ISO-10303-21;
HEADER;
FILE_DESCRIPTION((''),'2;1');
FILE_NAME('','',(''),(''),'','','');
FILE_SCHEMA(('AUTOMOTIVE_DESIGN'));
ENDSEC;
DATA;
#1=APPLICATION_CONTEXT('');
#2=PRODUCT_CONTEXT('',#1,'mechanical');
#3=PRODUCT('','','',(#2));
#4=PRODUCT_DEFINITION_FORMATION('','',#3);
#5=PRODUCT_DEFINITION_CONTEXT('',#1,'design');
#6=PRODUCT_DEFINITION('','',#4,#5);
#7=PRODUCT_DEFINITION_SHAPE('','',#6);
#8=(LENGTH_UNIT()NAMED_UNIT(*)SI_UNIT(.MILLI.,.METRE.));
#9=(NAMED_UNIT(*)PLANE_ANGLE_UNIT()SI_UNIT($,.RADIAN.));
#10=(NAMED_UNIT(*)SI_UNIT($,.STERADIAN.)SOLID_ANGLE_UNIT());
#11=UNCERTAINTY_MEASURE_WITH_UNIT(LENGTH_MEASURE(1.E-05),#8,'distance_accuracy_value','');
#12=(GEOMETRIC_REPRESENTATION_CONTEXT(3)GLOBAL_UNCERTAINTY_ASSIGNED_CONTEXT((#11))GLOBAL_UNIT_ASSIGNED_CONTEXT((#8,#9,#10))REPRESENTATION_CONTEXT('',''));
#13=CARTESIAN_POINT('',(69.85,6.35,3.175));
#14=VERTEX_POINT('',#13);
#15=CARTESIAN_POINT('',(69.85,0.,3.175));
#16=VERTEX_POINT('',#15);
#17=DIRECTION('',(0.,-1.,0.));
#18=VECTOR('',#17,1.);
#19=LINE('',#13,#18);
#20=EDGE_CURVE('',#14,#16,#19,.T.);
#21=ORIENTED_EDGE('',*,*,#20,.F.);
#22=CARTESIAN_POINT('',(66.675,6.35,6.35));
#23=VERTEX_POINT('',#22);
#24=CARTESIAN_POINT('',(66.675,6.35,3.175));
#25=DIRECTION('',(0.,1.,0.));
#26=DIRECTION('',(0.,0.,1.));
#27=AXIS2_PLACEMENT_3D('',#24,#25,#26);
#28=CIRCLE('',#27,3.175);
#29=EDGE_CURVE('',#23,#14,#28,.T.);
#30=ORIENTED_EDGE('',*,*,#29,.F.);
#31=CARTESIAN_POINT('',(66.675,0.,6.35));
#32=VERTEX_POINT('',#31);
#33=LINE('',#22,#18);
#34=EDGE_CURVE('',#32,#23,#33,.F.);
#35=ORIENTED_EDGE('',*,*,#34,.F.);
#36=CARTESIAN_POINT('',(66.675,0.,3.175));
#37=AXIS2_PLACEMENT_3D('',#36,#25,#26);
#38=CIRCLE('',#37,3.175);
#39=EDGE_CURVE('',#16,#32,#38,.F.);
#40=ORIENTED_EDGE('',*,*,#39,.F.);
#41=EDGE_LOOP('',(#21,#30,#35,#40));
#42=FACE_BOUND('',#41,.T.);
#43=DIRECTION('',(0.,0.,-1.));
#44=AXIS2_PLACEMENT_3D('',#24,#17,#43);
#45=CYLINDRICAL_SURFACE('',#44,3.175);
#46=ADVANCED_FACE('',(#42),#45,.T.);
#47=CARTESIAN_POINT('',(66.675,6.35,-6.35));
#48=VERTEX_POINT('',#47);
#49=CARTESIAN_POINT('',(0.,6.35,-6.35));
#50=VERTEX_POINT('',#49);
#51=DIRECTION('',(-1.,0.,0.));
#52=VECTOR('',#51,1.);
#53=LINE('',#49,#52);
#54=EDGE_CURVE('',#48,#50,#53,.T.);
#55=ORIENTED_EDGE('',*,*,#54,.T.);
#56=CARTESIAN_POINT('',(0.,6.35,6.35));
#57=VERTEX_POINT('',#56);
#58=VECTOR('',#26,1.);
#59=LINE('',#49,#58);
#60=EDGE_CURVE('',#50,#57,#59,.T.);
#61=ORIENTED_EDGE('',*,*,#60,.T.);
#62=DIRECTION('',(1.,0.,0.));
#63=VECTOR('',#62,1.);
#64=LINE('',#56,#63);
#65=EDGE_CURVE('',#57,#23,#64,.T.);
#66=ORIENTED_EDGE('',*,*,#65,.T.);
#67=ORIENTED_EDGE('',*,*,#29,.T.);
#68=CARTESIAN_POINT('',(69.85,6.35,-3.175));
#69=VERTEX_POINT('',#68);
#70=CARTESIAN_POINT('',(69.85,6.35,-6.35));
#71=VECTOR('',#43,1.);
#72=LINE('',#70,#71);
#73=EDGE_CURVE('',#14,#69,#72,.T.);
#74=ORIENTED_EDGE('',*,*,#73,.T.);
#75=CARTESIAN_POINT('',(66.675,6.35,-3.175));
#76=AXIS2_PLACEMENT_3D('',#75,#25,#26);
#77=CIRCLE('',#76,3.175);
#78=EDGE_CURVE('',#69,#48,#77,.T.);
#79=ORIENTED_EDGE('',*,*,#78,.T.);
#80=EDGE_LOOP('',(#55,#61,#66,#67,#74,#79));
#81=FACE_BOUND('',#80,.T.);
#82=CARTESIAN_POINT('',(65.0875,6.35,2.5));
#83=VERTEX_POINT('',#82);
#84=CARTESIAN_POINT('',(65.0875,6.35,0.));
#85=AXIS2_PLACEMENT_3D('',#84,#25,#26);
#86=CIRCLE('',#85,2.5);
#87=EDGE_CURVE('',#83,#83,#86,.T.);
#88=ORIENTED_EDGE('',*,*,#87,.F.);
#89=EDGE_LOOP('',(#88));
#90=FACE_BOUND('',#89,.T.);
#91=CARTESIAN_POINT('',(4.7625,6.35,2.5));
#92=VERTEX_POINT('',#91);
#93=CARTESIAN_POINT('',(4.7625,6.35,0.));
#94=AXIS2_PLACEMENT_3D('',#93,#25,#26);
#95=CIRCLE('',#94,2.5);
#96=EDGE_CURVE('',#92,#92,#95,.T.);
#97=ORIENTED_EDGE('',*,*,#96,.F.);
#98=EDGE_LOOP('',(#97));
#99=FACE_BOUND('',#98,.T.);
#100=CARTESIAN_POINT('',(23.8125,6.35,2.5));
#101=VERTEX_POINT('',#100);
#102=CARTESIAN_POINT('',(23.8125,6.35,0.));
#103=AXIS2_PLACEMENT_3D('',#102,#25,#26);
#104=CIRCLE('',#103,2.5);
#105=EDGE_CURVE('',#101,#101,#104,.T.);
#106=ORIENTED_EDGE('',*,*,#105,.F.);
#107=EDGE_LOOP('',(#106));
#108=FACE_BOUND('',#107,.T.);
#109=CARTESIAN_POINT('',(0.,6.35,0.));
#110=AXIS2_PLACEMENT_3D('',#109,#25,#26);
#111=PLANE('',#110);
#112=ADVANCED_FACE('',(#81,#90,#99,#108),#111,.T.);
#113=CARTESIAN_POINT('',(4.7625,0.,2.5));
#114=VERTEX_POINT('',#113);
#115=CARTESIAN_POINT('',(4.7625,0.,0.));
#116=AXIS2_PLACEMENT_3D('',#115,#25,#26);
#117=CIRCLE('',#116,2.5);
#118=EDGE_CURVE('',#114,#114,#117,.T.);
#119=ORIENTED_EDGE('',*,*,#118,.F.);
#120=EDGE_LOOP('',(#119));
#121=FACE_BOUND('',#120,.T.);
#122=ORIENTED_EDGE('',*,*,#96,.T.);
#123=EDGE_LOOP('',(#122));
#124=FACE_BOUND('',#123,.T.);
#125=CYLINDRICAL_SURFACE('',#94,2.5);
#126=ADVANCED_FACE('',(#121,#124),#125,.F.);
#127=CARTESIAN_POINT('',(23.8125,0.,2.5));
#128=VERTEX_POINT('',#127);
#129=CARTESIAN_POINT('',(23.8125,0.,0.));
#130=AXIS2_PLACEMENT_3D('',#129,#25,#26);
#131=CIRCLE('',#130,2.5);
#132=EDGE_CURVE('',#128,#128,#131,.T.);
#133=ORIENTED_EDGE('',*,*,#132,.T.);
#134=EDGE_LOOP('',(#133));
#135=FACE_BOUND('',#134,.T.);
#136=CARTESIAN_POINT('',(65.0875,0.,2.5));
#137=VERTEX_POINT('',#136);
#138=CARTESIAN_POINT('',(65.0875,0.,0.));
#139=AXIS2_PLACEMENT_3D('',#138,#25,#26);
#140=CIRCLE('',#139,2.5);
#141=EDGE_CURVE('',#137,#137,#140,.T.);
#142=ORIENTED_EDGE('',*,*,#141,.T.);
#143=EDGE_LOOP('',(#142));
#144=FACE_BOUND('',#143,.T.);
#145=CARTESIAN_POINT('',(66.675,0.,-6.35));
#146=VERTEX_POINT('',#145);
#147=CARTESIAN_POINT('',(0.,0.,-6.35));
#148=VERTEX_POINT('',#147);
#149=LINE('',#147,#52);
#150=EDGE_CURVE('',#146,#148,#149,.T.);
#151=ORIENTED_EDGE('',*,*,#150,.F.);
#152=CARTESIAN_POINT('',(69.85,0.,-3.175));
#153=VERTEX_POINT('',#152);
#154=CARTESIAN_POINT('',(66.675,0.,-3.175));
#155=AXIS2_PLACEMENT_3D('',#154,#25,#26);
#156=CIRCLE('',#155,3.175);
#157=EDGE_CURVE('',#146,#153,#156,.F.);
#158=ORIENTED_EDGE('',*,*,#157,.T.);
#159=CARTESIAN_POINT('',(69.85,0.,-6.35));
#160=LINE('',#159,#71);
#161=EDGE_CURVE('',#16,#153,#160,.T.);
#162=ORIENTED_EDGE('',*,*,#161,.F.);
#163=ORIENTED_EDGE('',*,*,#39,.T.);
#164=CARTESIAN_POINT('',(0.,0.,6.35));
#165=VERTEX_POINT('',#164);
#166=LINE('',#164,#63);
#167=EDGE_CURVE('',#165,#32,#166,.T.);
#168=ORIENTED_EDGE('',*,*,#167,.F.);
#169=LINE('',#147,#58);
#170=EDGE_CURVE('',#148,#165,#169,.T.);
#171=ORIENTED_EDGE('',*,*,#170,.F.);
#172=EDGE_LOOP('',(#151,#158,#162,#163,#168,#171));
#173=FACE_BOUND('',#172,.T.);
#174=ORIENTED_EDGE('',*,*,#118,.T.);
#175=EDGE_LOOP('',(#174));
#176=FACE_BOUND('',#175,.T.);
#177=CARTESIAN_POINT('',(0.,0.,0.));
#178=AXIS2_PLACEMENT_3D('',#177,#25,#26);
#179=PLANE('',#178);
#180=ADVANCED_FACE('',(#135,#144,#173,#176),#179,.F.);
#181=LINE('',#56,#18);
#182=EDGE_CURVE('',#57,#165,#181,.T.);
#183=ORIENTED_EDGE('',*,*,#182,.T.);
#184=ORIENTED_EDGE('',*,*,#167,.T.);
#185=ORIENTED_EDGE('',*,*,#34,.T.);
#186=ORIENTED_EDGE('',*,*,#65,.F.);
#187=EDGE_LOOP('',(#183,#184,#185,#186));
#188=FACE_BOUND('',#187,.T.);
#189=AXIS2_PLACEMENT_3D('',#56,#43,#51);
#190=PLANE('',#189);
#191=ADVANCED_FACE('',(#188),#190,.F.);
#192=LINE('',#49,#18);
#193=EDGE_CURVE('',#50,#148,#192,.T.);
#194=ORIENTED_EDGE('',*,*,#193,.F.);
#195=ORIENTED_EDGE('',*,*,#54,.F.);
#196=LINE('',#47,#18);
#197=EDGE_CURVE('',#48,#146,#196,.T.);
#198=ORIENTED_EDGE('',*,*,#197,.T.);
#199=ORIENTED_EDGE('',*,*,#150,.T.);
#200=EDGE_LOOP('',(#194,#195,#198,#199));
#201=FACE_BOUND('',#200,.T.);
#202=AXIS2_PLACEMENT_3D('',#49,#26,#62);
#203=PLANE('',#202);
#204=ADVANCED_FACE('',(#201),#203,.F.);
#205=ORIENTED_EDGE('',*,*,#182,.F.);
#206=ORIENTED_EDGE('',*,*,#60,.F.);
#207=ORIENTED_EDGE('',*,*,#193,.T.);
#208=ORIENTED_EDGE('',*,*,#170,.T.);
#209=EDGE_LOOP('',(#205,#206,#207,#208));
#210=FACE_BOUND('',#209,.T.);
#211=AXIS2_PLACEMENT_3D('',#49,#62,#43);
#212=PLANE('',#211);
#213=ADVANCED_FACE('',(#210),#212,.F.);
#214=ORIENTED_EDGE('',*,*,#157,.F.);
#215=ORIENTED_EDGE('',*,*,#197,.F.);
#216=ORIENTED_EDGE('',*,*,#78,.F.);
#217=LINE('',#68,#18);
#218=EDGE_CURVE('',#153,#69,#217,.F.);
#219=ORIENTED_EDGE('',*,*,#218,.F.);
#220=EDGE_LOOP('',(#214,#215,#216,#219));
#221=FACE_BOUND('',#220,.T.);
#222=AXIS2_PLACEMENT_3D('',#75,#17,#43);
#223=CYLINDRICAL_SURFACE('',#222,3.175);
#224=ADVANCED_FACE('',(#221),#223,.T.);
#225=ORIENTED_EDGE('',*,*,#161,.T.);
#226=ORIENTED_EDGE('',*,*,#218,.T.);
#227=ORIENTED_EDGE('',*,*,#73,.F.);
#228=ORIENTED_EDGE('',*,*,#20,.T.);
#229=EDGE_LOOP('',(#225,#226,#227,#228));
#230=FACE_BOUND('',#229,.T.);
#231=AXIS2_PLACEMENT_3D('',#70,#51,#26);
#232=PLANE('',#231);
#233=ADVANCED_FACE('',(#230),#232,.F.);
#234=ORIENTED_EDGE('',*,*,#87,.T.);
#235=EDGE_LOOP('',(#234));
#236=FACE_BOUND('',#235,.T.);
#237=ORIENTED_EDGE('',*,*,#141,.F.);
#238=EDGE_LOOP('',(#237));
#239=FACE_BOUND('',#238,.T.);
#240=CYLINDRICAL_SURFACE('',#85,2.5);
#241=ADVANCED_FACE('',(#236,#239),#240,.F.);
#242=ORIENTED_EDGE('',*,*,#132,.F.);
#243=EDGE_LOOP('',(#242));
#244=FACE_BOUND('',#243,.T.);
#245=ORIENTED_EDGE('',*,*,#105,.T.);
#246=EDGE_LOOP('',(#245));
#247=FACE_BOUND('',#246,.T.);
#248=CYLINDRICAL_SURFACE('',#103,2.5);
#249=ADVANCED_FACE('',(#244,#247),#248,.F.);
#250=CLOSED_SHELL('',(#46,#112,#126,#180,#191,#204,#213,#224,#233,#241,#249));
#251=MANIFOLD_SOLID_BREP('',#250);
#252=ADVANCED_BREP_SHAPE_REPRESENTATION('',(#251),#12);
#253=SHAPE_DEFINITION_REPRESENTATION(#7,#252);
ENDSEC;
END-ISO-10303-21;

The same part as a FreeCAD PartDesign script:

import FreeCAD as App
import Part
import Sketcher

V = App.Vector
Q = App.Units.Quantity


def edges_at(feature, points):
    """Names of the edges that pass closest to the given points."""
    edges = feature.Shape.Edges
    near = lambda p: min(range(len(edges)), key=lambda i: edges[i].distToShape(Part.Vertex(*p))[0])
    return sorted({f"Edge{near(p) + 1}" for p in points})


def add_polygon(sketch, points):
    """Adds a closed chain of lines whose ends are joined by coincident constraints."""
    first, n = sketch.GeometryCount, len(points)
    for a, b in zip(points, points[1:] + points[:1]):
        sketch.addGeometry(Part.LineSegment(App.Vector(*a, 0), App.Vector(*b, 0)), False)
    for i in range(n):
        sketch.addConstraint(Sketcher.Constraint("Coincident", first + i, 2, first + (i + 1) % n, 1))

doc = App.newDocument("Part")
body = doc.addObject("PartDesign::Body", "Body")

# Sketch on XZ plane
sketch1 = body.newObject("Sketcher::SketchObject", "Sketch")
sketch1.AttachmentSupport = (doc.getObject("XZ_Plane"), [""])
sketch1.MapMode = "FlatFace"
add_polygon(sketch1, [(0, -6), (0, 6), (70, 6), (70, -6)])  # lines 0-3
sketch1.addConstraint(Sketcher.Constraint("Vertical", 0))
sketch1.addConstraint(Sketcher.Constraint("Horizontal", 1))
sketch1.addConstraint(Sketcher.Constraint("Vertical", 2))
sketch1.addConstraint(Sketcher.Constraint("Horizontal", 3))
sketch1.addConstraint(Sketcher.Constraint("Symmetric", 0, 2, 3, 2, -1, 1))
sketch1.addConstraint(Sketcher.Constraint("DistanceY", 0, 1, 0, 2, Q("0.5 in")))
sketch1.addConstraint(Sketcher.Constraint("DistanceX", 1, 1, 1, 2, Q("2.75 in")))
pad1 = body.newObject("PartDesign::Pad", "Pad")
pad1.Profile = sketch1
pad1.Length = Q("0.25 in")
pad1.Reversed = True

# Sketch on XZ plane
sketch2 = body.newObject("Sketcher::SketchObject", "Sketch001")
sketch2.AttachmentSupport = (doc.getObject("XZ_Plane"), [""])
sketch2.MapMode = "FlatFace"
sketch2.AttachmentOffset = App.Placement(V(0, 0, -0.25 * 25.4), App.Rotation())
sketch2.addGeometry(Part.Circle(V(4.8, 0, 0), V(0, 0, 1), 2.5), False)
sketch2.addGeometry(Part.Circle(V(23.8, 0, 0), V(0, 0, 1), 2.5), False)
sketch2.addGeometry(Part.Circle(V(65.1, 0, 0), V(0, 0, 1), 2.5), False)
sketch2.addConstraint(Sketcher.Constraint("Equal", 0, 1))
sketch2.addConstraint(Sketcher.Constraint("Equal", 1, 2))
sketch2.addConstraint(Sketcher.Constraint("PointOnObject", 0, 3, -1))
sketch2.addConstraint(Sketcher.Constraint("PointOnObject", 1, 3, -1))
sketch2.addConstraint(Sketcher.Constraint("PointOnObject", 2, 3, -1))
sketch2.addConstraint(Sketcher.Constraint("Diameter", 0, Q("5 mm")))
sketch2.addConstraint(Sketcher.Constraint("DistanceX", 0, 3, 1, 3, Q("0.75 in")))
sketch2.addConstraint(Sketcher.Constraint("DistanceX", -1, 1, 0, 3, Q("0.1875 in")))
sketch2.addConstraint(Sketcher.Constraint("DistanceX", -1, 1, 2, 3, Q("2.5625 in")))
doc.recompute()
hole = body.newObject("PartDesign::Hole", "Hole")
hole.Profile = sketch2
hole.ThreadType = "None"
hole.Diameter = 5
hole.DepthType = "ThroughAll"
hole.Reversed = True
doc.recompute()

fillet = body.newObject("PartDesign::Fillet", "Fillet")
fillet.Base = (hole, edges_at(hole, [(69.85, 3.175, -6.35), (69.85, 3.175, 6.35)]))
fillet.Radius = Q("0.125 in")

doc.recompute()
